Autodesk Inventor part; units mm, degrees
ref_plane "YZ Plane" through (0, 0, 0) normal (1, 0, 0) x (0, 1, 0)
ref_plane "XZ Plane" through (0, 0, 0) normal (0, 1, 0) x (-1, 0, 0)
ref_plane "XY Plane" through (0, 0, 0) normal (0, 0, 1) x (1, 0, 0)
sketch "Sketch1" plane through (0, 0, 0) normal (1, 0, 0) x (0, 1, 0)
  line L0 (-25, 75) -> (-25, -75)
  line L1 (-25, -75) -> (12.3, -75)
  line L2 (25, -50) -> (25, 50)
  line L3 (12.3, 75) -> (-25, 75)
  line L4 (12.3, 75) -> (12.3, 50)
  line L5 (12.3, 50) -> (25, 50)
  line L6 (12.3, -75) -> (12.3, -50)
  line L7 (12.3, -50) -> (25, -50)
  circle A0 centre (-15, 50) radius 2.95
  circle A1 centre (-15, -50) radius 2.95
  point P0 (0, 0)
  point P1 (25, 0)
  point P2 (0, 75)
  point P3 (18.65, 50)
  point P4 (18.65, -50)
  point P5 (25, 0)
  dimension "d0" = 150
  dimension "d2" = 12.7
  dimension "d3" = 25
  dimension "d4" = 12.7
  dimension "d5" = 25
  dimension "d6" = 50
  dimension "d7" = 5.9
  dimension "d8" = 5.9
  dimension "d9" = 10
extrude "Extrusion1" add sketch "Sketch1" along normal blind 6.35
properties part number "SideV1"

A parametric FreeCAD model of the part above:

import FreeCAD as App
import Part
import Sketcher
Q = App.Units.Quantity


def add_polygon(sketch, points):
    """Adds a closed chain of lines whose ends are joined by coincident constraints."""
    first, n = sketch.GeometryCount, len(points)
    for a, b in zip(points, points[1:] + points[:1]):
        sketch.addGeometry(Part.LineSegment(App.Vector(*a, 0), App.Vector(*b, 0)), False)
    for i in range(n):
        sketch.addConstraint(Sketcher.Constraint("Coincident", first + i, 2, first + (i + 1) % n, 1))

doc = App.newDocument("Part")
body = doc.addObject("PartDesign::Body", "Body")

sketch1 = body.newObject("Sketcher::SketchObject", "Sketch")
sketch1.AttachmentSupport = (doc.getObject("YZ_Plane"), [""])
sketch1.MapMode = "FlatFace"
add_polygon(sketch1, [(12.3, 75), (-25, 75), (-25, -75), (12.3, -75), (12.3, -50), (25, -50), (25, 50), (12.3, 50)])
sketch1.addGeometry(Part.Circle(App.Vector(-15, -50, 0), App.Vector(0, 0, 1), 3), False)
sketch1.addGeometry(Part.Circle(App.Vector(-15, 50, 0), App.Vector(0, 0, 1), 3), False)
sketch1.addConstraint(Sketcher.Constraint("Horizontal", 0))
sketch1.addConstraint(Sketcher.Constraint("Vertical", 1))
sketch1.addConstraint(Sketcher.Constraint("Horizontal", 2))
sketch1.addConstraint(Sketcher.Constraint("Vertical", 3))
sketch1.addConstraint(Sketcher.Constraint("Horizontal", 4))
sketch1.addConstraint(Sketcher.Constraint("Vertical", 5))
sketch1.addConstraint(Sketcher.Constraint("Horizontal", 6))
sketch1.addConstraint(Sketcher.Constraint("Vertical", 7))
sketch1.addConstraint(Sketcher.Constraint("Equal", 8, 9))
sketch1.addConstraint(Sketcher.Constraint("Symmetric", 8, 3, 9, 3, -1))
sketch1.addConstraint(Sketcher.Constraint("Symmetric", 3, 2, 6, 2, -1))
sketch1.addConstraint(Sketcher.Constraint("Horizontal", 8, 3, 3, 2))
sketch1.addConstraint(Sketcher.Constraint("Equal", 3, 7))
sketch1.addConstraint(Sketcher.Constraint("DistanceX", 4, 1, 4, 2, Q("0.5 in")))
sketch1.addConstraint(Sketcher.Constraint("Diameter", 8, Q("5.9 mm")))
sketch1.addConstraint(Sketcher.Constraint("DistanceY", 1, 2, 1, 1, Q("5.9055 in")))
sketch1.addConstraint(Sketcher.Constraint("DistanceY", 3, 1, 3, 2, Q("25 mm")))
sketch1.addConstraint(Sketcher.Constraint("DistanceX", 0, 2, 9, 3, Q("0.3937 in")))
sketch1.addConstraint(Sketcher.Constraint("DistanceX", 1, 2, 4, 2, Q("1.9685 in")))
sketch1.addConstraint(Sketcher.Constraint("DistanceX", 0, 2, -1, 1, Q("25 mm")))
pad1 = body.newObject("PartDesign::Pad", "Pad")
pad1.Profile = sketch1
pad1.Length = Q("0.25 in")

doc.recompute()
